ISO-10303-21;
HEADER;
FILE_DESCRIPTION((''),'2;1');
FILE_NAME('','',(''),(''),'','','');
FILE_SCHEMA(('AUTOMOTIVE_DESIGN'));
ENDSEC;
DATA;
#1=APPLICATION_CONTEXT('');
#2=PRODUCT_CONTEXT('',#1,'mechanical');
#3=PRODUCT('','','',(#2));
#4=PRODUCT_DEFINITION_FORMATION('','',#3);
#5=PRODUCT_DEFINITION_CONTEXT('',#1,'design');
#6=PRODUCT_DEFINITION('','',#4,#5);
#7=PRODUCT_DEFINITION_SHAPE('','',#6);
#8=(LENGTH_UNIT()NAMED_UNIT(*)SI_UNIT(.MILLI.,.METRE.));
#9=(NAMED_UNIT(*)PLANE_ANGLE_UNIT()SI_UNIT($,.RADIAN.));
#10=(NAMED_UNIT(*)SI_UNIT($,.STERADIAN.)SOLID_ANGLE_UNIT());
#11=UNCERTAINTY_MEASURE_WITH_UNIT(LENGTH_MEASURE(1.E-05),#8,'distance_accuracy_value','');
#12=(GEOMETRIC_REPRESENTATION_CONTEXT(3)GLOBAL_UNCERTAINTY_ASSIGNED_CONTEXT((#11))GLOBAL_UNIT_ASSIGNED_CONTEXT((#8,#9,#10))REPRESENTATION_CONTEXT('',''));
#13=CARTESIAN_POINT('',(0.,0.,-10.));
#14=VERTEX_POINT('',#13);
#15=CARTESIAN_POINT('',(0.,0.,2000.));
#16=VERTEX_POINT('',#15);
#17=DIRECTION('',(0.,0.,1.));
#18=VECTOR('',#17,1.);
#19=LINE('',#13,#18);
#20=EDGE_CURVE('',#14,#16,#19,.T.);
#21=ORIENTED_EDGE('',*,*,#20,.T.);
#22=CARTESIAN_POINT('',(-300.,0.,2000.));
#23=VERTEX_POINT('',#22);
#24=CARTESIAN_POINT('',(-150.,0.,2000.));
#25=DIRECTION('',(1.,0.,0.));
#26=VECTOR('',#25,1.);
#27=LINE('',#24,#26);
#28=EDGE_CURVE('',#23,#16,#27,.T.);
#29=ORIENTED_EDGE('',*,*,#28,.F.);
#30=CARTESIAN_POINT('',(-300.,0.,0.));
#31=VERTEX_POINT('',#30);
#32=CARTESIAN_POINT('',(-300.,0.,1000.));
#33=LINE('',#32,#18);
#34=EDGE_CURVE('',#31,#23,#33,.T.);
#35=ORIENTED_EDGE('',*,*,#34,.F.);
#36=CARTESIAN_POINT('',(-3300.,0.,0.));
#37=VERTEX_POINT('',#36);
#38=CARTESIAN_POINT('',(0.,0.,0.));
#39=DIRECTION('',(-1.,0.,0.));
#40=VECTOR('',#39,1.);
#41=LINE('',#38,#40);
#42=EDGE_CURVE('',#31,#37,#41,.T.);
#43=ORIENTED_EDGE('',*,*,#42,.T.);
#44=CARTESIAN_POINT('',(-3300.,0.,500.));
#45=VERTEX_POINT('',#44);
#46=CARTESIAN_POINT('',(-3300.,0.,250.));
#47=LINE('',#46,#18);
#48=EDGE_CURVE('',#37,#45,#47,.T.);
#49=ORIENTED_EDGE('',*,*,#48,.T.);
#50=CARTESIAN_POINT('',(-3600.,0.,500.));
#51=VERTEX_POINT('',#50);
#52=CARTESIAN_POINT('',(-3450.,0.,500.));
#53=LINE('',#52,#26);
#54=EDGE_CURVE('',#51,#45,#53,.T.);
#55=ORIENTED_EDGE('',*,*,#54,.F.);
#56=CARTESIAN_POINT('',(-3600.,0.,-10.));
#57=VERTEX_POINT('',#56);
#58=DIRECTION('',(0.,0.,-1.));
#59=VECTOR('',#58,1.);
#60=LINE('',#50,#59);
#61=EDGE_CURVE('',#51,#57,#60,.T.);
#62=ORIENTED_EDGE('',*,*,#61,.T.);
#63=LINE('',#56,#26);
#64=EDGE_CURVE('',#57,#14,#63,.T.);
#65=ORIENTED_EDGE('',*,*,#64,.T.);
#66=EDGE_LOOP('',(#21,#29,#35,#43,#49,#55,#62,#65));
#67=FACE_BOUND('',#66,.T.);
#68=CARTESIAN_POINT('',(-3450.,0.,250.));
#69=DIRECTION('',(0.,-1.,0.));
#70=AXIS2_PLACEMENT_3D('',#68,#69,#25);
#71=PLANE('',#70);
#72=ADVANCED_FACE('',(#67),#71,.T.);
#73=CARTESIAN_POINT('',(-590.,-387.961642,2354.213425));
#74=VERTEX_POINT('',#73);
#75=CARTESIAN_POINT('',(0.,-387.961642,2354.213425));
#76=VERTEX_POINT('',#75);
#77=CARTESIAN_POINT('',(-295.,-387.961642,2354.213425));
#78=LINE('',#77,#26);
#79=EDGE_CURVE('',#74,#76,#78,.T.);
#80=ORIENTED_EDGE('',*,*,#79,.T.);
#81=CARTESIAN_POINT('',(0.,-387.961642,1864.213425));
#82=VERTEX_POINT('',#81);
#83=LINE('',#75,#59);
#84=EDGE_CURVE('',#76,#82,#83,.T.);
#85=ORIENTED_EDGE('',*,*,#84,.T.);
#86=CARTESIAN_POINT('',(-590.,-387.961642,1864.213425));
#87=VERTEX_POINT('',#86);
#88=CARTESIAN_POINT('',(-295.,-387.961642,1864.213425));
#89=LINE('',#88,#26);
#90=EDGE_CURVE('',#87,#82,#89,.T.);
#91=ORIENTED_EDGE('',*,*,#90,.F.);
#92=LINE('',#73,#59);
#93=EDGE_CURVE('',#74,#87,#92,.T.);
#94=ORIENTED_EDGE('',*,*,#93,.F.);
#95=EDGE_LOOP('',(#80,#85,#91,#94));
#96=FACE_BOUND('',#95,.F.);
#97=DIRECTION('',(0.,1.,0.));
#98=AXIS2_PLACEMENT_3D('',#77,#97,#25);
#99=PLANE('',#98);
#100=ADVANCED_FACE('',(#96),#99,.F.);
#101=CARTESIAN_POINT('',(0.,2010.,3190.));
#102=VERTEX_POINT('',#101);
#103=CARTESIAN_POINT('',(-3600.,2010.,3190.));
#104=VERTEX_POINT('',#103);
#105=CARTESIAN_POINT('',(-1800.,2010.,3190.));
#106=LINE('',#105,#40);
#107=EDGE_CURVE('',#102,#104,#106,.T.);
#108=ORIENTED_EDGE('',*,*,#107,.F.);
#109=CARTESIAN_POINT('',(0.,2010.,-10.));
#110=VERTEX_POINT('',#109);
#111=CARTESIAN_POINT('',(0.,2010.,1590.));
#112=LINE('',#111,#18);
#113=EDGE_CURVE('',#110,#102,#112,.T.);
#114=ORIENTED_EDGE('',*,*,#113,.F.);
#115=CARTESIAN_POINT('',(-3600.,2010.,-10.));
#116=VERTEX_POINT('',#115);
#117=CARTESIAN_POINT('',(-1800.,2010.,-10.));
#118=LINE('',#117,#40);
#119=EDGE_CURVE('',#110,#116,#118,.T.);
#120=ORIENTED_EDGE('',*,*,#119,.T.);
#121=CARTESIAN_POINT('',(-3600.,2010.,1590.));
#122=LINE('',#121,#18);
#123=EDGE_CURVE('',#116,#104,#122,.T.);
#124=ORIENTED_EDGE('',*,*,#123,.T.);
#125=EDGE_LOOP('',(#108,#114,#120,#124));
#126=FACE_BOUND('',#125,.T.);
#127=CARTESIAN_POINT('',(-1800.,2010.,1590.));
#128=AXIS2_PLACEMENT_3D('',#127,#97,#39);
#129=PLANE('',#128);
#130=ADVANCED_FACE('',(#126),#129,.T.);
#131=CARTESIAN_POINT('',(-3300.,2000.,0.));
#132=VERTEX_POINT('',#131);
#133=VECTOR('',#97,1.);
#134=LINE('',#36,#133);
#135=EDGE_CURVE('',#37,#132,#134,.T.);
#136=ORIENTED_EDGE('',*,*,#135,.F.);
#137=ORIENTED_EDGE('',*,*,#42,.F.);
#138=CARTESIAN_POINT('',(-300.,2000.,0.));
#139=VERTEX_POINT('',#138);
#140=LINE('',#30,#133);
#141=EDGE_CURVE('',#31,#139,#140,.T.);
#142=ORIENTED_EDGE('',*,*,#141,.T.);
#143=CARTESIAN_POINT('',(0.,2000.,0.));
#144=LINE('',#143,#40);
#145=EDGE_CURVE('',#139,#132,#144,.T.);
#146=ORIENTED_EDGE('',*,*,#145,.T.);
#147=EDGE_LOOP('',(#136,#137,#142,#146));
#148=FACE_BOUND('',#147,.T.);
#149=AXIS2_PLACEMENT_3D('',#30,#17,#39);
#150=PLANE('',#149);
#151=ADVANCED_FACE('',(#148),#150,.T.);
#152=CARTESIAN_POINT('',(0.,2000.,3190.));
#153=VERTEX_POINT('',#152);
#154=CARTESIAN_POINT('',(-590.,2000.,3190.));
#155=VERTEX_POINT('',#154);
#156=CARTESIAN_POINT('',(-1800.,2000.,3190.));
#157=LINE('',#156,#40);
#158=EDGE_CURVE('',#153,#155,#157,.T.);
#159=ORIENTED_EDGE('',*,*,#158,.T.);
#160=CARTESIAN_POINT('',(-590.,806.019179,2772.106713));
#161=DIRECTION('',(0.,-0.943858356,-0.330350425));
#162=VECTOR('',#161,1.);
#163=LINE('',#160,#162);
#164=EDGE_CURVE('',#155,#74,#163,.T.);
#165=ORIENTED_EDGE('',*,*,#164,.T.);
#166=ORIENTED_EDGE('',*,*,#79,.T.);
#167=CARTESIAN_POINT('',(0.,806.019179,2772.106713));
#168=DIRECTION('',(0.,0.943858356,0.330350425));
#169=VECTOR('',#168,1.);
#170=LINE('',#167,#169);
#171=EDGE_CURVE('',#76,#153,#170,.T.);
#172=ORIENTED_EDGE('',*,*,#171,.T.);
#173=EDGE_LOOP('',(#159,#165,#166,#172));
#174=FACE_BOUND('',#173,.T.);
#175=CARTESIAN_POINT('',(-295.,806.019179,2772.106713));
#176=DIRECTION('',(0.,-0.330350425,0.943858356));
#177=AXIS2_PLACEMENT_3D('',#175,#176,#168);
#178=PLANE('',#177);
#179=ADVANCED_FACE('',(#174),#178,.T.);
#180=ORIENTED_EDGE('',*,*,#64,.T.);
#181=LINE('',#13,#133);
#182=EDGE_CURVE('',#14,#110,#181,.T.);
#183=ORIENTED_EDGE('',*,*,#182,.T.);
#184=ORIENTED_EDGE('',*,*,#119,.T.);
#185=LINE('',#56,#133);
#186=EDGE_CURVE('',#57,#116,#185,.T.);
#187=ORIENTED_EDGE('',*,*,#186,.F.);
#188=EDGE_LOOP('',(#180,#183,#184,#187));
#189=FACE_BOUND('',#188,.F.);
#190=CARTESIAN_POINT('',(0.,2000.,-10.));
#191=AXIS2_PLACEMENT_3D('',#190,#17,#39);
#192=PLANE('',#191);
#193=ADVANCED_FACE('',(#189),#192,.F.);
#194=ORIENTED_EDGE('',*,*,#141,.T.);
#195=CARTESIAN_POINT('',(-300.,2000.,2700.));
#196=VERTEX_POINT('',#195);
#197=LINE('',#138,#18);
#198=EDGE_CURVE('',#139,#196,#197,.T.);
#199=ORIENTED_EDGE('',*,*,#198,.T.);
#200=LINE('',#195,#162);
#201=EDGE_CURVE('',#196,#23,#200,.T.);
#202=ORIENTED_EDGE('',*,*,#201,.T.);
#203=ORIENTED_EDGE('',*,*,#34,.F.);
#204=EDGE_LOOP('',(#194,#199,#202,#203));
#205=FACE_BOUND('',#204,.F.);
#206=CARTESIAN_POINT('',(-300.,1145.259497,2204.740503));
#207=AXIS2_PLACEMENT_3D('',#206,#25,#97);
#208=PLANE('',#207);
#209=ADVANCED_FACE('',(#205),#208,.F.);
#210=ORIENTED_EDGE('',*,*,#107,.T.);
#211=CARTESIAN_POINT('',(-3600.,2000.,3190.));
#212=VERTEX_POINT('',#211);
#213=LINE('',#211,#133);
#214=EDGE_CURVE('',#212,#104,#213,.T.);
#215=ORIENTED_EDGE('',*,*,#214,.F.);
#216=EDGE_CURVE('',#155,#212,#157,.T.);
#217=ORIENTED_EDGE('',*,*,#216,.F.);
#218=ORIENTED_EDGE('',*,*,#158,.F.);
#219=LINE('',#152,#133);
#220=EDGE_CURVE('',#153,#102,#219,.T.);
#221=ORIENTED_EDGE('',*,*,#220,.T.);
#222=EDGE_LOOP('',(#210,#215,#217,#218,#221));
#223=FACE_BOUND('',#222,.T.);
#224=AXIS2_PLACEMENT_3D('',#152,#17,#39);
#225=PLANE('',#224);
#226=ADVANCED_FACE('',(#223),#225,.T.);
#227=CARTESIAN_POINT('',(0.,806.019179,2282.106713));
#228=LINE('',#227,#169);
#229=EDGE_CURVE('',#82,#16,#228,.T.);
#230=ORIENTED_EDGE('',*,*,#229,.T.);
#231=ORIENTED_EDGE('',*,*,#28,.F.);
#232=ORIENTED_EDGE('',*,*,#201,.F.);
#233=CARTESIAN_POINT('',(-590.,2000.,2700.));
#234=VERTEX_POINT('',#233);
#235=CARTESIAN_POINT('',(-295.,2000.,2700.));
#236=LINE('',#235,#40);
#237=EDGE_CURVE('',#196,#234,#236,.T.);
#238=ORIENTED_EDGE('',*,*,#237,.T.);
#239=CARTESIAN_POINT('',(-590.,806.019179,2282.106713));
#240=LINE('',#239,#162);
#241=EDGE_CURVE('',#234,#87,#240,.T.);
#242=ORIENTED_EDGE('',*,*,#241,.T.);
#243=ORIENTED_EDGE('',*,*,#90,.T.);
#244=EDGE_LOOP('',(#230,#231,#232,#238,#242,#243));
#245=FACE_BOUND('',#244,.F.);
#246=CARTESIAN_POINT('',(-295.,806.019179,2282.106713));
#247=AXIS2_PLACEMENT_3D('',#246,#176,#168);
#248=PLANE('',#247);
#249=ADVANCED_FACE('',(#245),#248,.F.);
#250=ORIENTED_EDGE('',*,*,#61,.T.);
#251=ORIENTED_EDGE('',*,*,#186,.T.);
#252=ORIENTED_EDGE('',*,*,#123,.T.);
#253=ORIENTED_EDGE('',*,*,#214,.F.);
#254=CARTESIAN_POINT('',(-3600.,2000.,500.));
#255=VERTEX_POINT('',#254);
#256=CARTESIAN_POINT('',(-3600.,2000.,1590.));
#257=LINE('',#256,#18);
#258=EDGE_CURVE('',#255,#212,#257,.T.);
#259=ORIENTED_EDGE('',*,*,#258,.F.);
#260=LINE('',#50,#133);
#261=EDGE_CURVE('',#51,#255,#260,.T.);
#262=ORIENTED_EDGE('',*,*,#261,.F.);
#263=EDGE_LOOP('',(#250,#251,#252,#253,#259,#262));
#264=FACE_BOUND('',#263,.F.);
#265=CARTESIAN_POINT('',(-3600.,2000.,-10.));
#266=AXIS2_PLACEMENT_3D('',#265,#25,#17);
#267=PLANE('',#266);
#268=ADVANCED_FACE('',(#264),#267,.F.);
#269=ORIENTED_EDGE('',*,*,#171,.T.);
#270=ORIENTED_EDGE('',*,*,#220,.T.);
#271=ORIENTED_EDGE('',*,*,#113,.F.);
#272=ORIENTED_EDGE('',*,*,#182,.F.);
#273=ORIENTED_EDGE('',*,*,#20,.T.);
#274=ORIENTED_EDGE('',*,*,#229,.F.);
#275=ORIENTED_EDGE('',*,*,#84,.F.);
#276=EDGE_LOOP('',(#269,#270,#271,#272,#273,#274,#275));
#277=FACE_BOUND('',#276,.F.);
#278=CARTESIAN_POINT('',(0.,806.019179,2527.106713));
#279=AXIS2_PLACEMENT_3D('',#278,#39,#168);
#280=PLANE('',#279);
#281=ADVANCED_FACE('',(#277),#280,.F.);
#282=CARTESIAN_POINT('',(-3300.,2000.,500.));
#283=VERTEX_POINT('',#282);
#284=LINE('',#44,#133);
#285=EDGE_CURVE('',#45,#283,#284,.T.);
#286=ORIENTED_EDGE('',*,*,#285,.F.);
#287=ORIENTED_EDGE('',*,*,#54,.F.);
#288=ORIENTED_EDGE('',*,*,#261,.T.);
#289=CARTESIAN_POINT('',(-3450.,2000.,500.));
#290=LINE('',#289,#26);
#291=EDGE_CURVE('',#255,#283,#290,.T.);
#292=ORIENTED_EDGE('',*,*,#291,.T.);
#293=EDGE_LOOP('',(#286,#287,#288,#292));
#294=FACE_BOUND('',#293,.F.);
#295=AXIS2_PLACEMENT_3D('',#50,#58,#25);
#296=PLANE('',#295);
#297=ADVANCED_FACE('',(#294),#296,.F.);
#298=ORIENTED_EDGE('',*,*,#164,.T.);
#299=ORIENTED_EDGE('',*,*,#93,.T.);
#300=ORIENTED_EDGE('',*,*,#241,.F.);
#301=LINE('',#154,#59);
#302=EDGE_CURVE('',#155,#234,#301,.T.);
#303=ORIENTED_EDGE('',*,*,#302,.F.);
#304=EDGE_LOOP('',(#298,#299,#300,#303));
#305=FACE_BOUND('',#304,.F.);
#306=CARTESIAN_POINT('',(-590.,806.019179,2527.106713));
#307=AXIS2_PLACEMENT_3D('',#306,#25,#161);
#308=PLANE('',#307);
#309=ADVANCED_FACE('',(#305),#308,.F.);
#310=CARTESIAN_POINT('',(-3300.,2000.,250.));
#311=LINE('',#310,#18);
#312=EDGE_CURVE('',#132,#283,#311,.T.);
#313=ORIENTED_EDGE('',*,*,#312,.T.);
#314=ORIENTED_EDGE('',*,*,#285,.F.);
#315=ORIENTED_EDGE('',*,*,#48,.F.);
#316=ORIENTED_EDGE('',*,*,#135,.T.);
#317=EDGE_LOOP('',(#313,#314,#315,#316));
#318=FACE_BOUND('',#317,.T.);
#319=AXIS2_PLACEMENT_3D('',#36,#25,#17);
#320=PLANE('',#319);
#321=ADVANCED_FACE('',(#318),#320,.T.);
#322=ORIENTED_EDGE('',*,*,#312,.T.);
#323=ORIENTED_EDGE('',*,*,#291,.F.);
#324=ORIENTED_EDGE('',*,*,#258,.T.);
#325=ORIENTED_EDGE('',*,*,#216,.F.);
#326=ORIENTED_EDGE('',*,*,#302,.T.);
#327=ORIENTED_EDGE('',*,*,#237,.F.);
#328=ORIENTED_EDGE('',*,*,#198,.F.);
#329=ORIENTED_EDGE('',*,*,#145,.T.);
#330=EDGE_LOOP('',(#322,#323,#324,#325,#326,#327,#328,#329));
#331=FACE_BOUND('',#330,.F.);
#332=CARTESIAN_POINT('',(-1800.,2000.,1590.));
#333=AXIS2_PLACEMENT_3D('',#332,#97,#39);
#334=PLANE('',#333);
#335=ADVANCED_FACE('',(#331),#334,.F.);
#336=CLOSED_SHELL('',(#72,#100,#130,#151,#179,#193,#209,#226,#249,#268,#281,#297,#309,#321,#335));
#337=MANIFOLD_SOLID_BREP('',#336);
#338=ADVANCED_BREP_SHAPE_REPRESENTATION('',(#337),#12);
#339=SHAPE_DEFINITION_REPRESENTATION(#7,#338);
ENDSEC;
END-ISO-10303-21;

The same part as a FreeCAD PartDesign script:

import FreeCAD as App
import Part
import Sketcher
from FreeCAD import Vector

doc = App.newDocument("Part")
body = doc.addObject("PartDesign::Body", "Body")

sketch1 = body.newObject("Sketcher::SketchObject", "Sketch")
sketch1.AttachmentSupport = (doc.getObject("XZ_Plane"), [""])
sketch1.MapMode = "FlatFace"
sketch1.addGeometry([
    Part.LineSegment(Vector(-3600, 500, 0), Vector(-3600, -10, 0)),
    Part.LineSegment(Vector(-3600, -10, 0), Vector(0, -10, 0)),
    Part.LineSegment(Vector(0, -10, 0), Vector(0, 2000, 0)),
    Part.LineSegment(Vector(0, 2000, 0), Vector(-300, 2000, 0)),
    Part.LineSegment(Vector(-300, 2000, 0), Vector(-300, 0, 0)),
    Part.LineSegment(Vector(-300, 0, 0), Vector(-3300, 0, 0)),
    Part.LineSegment(Vector(-3300, 0, 0), Vector(-3300, 500, 0)),
    Part.LineSegment(Vector(-3300, 500, 0), Vector(-3600, 500, 0)),
], False)
sketch1.addConstraint([
    Sketcher.Constraint("Coincident", 0, 2, 1, 1),
    Sketcher.Constraint("Coincident", 1, 2, 2, 1),
    Sketcher.Constraint("Coincident", 2, 2, 3, 1),
    Sketcher.Constraint("Coincident", 3, 2, 4, 1),
    Sketcher.Constraint("Coincident", 4, 2, 5, 1),
    Sketcher.Constraint("Coincident", 5, 2, 6, 1),
    Sketcher.Constraint("Coincident", 6, 2, 7, 1),
    Sketcher.Constraint("Coincident", 7, 2, 0, 1),
    Sketcher.Constraint("Vertical", 0),
    Sketcher.Constraint("Horizontal", 1),
    Sketcher.Constraint("Vertical", 2),
    Sketcher.Constraint("Horizontal", 3),
    Sketcher.Constraint("Vertical", 4),
    Sketcher.Constraint("Horizontal", 5),
    Sketcher.Constraint("Vertical", 6),
    Sketcher.Constraint("Horizontal", 7),
    Sketcher.Constraint("PointOnObject", 1, 2, -2),
    Sketcher.Constraint("PointOnObject", 4, 2, -1),
    Sketcher.Constraint("Equal", 3, 7),
    Sketcher.Constraint("DistanceX", 1, 1, 1, 2, 3600.0),
    Sketcher.Constraint("DistanceX", 3, 2, 3, 1, 300.0),
    Sketcher.Constraint("DistanceY", 0, 2, 0, 1, 510.0),
    Sketcher.Constraint("DistanceY", 2, 1, 2, 2, 2010.0),
    Sketcher.Constraint("DistanceY", 4, 2, 4, 1, 2000.0),
])
pad1 = body.newObject("PartDesign::Pad", "Pad")
pad1.Profile = sketch1
pad1.Length = 2000
pad1.Reversed = True

sketch2 = body.newObject("Sketcher::SketchObject", "Sketch001")
sketch2.AttachmentSupport = (doc.getObject("XZ_Plane"), [""])
sketch2.MapMode = "FlatFace"
sketch2.AttachmentOffset = App.Placement(Vector(0, 0, -2000), App.Rotation())
sketch2.addGeometry([
    Part.LineSegment(Vector(0, 3190, 0), Vector(0, -10, 0)),
    Part.LineSegment(Vector(0, -10, 0), Vector(-3600, -10, 0)),
    Part.LineSegment(Vector(-3600, -10, 0), Vector(-3600, 3190, 0)),
    Part.LineSegment(Vector(-3600, 3190, 0), Vector(0, 3190, 0)),
], False)
sketch2.addConstraint([
    Sketcher.Constraint("Coincident", 0, 2, 1, 1),
    Sketcher.Constraint("Coincident", 1, 2, 2, 1),
    Sketcher.Constraint("Coincident", 2, 2, 3, 1),
    Sketcher.Constraint("Coincident", 3, 2, 0, 1),
    Sketcher.Constraint("Vertical", 0),
    Sketcher.Constraint("Horizontal", 1),
    Sketcher.Constraint("Vertical", 2),
    Sketcher.Constraint("Horizontal", 3),
    Sketcher.Constraint("PointOnObject", 0, 2, -2),
    Sketcher.Constraint("DistanceX", 1, 2, 1, 1, 3600.0),
    Sketcher.Constraint("DistanceY", 0, 2, 0, 1, 3200.0),
    Sketcher.Constraint("DistanceY", 0, 2, -1, 1, 10.0),
])
pad2 = body.newObject("PartDesign::Pad", "Pad001")
pad2.Profile = sketch2
pad2.Length = 10
pad2.Reversed = True

sketch3 = body.newObject("Sketcher::SketchObject", "Sketch002")
sketch3.AttachmentSupport = (doc.getObject("YZ_Plane"), [""])
sketch3.MapMode = "FlatFace"
sketch3.addGeometry([
    Part.LineSegment(Vector(2000, 2700, 0), Vector(0, 2000, 0)),
    Part.LineSegment(Vector(0, 2000, 0), Vector(2000, 2000, 0)),
    Part.LineSegment(Vector(2000, 2000, 0), Vector(2000, 2700, 0)),
], False)
sketch3.addConstraint([
    Sketcher.Constraint("Coincident", 0, 2, 1, 1),
    Sketcher.Constraint("Coincident", 1, 2, 2, 1),
    Sketcher.Constraint("Coincident", 2, 2, 0, 1),
    Sketcher.Constraint("Horizontal", 1),
    Sketcher.Constraint("Vertical", 2),
    Sketcher.Constraint("PointOnObject", 0, 2, -2),
    Sketcher.Constraint("DistanceX", 1, 1, 1, 2, 2000.0),
    Sketcher.Constraint("DistanceY", 2, 1, 2, 2, 700.0),
    Sketcher.Constraint("DistanceY", -1, 1, 0, 2, 2000.0),
])
pad3 = body.newObject("PartDesign::Pad", "Pad002")
pad3.Profile = sketch3
pad3.Length = 300
pad3.Reversed = True

sketch4 = body.newObject("Sketcher::SketchObject", "Sketch003")
sketch4.Placement = App.Placement(Vector(0, -623.608018, 1781.737194), App.Rotation(Vector(1, 0, 0), Vector(0, 0.943858356, 0.330350425), Vector(0, -0.330350425, 0.943858356), "ZXY"))
sketch4.addGeometry([
    Part.LineSegment(Vector(-590, 2780, 0), Vector(-590, 250, 0)),
    Part.LineSegment(Vector(-590, 250, 0), Vector(0, 250, 0)),
    Part.LineSegment(Vector(0, 250, 0), Vector(0, 2780, 0)),
    Part.LineSegment(Vector(0, 2780, 0), Vector(-590, 2780, 0)),
], False)
sketch4.addConstraint([
    Sketcher.Constraint("Coincident", 0, 2, 1, 1),
    Sketcher.Constraint("Coincident", 1, 2, 2, 1),
    Sketcher.Constraint("Coincident", 2, 2, 3, 1),
    Sketcher.Constraint("Coincident", 3, 2, 0, 1),
    Sketcher.Constraint("Vertical", 0),
    Sketcher.Constraint("Horizontal", 1),
    Sketcher.Constraint("Vertical", 2),
    Sketcher.Constraint("Horizontal", 3),
    Sketcher.Constraint("PointOnObject", 1, 2, -2),
    Sketcher.Constraint("DistanceX", 1, 1, 1, 2, 590.0),
    Sketcher.Constraint("DistanceY", 0, 2, 0, 1, 2529.999999),
    Sketcher.Constraint("DistanceY", -1, 1, 0, 2, 249.662859),
])

sketch5 = body.newObject("Sketcher::SketchObject", "Sketch004")
sketch5.AttachmentSupport = (doc.getObject("XZ_Plane"), [""])
sketch5.MapMode = "FlatFace"
sketch5.AttachmentOffset = App.Placement(Vector(0, 0, -2000), App.Rotation())
sketch5.addGeometry(Part.LineSegment(Vector(0, 3190, 0), Vector(0, 2700, 0)), False)
sketch5.addConstraint([
    Sketcher.Constraint("Vertical", 0),
    Sketcher.Constraint("PointOnObject", 0, 1, -2),
    Sketcher.Constraint("DistanceY", 0, 2, 0, 1, 490.0),
    Sketcher.Constraint("DistanceY", -1, 1, 0, 1, 3190.0),
])
doc.recompute()

additivepipe = body.newObject("PartDesign::AdditivePipe", "AdditivePipe")
additivepipe.Profile = sketch4
additivepipe.Spine = (sketch5, ["Edge1"])

doc.recompute()
